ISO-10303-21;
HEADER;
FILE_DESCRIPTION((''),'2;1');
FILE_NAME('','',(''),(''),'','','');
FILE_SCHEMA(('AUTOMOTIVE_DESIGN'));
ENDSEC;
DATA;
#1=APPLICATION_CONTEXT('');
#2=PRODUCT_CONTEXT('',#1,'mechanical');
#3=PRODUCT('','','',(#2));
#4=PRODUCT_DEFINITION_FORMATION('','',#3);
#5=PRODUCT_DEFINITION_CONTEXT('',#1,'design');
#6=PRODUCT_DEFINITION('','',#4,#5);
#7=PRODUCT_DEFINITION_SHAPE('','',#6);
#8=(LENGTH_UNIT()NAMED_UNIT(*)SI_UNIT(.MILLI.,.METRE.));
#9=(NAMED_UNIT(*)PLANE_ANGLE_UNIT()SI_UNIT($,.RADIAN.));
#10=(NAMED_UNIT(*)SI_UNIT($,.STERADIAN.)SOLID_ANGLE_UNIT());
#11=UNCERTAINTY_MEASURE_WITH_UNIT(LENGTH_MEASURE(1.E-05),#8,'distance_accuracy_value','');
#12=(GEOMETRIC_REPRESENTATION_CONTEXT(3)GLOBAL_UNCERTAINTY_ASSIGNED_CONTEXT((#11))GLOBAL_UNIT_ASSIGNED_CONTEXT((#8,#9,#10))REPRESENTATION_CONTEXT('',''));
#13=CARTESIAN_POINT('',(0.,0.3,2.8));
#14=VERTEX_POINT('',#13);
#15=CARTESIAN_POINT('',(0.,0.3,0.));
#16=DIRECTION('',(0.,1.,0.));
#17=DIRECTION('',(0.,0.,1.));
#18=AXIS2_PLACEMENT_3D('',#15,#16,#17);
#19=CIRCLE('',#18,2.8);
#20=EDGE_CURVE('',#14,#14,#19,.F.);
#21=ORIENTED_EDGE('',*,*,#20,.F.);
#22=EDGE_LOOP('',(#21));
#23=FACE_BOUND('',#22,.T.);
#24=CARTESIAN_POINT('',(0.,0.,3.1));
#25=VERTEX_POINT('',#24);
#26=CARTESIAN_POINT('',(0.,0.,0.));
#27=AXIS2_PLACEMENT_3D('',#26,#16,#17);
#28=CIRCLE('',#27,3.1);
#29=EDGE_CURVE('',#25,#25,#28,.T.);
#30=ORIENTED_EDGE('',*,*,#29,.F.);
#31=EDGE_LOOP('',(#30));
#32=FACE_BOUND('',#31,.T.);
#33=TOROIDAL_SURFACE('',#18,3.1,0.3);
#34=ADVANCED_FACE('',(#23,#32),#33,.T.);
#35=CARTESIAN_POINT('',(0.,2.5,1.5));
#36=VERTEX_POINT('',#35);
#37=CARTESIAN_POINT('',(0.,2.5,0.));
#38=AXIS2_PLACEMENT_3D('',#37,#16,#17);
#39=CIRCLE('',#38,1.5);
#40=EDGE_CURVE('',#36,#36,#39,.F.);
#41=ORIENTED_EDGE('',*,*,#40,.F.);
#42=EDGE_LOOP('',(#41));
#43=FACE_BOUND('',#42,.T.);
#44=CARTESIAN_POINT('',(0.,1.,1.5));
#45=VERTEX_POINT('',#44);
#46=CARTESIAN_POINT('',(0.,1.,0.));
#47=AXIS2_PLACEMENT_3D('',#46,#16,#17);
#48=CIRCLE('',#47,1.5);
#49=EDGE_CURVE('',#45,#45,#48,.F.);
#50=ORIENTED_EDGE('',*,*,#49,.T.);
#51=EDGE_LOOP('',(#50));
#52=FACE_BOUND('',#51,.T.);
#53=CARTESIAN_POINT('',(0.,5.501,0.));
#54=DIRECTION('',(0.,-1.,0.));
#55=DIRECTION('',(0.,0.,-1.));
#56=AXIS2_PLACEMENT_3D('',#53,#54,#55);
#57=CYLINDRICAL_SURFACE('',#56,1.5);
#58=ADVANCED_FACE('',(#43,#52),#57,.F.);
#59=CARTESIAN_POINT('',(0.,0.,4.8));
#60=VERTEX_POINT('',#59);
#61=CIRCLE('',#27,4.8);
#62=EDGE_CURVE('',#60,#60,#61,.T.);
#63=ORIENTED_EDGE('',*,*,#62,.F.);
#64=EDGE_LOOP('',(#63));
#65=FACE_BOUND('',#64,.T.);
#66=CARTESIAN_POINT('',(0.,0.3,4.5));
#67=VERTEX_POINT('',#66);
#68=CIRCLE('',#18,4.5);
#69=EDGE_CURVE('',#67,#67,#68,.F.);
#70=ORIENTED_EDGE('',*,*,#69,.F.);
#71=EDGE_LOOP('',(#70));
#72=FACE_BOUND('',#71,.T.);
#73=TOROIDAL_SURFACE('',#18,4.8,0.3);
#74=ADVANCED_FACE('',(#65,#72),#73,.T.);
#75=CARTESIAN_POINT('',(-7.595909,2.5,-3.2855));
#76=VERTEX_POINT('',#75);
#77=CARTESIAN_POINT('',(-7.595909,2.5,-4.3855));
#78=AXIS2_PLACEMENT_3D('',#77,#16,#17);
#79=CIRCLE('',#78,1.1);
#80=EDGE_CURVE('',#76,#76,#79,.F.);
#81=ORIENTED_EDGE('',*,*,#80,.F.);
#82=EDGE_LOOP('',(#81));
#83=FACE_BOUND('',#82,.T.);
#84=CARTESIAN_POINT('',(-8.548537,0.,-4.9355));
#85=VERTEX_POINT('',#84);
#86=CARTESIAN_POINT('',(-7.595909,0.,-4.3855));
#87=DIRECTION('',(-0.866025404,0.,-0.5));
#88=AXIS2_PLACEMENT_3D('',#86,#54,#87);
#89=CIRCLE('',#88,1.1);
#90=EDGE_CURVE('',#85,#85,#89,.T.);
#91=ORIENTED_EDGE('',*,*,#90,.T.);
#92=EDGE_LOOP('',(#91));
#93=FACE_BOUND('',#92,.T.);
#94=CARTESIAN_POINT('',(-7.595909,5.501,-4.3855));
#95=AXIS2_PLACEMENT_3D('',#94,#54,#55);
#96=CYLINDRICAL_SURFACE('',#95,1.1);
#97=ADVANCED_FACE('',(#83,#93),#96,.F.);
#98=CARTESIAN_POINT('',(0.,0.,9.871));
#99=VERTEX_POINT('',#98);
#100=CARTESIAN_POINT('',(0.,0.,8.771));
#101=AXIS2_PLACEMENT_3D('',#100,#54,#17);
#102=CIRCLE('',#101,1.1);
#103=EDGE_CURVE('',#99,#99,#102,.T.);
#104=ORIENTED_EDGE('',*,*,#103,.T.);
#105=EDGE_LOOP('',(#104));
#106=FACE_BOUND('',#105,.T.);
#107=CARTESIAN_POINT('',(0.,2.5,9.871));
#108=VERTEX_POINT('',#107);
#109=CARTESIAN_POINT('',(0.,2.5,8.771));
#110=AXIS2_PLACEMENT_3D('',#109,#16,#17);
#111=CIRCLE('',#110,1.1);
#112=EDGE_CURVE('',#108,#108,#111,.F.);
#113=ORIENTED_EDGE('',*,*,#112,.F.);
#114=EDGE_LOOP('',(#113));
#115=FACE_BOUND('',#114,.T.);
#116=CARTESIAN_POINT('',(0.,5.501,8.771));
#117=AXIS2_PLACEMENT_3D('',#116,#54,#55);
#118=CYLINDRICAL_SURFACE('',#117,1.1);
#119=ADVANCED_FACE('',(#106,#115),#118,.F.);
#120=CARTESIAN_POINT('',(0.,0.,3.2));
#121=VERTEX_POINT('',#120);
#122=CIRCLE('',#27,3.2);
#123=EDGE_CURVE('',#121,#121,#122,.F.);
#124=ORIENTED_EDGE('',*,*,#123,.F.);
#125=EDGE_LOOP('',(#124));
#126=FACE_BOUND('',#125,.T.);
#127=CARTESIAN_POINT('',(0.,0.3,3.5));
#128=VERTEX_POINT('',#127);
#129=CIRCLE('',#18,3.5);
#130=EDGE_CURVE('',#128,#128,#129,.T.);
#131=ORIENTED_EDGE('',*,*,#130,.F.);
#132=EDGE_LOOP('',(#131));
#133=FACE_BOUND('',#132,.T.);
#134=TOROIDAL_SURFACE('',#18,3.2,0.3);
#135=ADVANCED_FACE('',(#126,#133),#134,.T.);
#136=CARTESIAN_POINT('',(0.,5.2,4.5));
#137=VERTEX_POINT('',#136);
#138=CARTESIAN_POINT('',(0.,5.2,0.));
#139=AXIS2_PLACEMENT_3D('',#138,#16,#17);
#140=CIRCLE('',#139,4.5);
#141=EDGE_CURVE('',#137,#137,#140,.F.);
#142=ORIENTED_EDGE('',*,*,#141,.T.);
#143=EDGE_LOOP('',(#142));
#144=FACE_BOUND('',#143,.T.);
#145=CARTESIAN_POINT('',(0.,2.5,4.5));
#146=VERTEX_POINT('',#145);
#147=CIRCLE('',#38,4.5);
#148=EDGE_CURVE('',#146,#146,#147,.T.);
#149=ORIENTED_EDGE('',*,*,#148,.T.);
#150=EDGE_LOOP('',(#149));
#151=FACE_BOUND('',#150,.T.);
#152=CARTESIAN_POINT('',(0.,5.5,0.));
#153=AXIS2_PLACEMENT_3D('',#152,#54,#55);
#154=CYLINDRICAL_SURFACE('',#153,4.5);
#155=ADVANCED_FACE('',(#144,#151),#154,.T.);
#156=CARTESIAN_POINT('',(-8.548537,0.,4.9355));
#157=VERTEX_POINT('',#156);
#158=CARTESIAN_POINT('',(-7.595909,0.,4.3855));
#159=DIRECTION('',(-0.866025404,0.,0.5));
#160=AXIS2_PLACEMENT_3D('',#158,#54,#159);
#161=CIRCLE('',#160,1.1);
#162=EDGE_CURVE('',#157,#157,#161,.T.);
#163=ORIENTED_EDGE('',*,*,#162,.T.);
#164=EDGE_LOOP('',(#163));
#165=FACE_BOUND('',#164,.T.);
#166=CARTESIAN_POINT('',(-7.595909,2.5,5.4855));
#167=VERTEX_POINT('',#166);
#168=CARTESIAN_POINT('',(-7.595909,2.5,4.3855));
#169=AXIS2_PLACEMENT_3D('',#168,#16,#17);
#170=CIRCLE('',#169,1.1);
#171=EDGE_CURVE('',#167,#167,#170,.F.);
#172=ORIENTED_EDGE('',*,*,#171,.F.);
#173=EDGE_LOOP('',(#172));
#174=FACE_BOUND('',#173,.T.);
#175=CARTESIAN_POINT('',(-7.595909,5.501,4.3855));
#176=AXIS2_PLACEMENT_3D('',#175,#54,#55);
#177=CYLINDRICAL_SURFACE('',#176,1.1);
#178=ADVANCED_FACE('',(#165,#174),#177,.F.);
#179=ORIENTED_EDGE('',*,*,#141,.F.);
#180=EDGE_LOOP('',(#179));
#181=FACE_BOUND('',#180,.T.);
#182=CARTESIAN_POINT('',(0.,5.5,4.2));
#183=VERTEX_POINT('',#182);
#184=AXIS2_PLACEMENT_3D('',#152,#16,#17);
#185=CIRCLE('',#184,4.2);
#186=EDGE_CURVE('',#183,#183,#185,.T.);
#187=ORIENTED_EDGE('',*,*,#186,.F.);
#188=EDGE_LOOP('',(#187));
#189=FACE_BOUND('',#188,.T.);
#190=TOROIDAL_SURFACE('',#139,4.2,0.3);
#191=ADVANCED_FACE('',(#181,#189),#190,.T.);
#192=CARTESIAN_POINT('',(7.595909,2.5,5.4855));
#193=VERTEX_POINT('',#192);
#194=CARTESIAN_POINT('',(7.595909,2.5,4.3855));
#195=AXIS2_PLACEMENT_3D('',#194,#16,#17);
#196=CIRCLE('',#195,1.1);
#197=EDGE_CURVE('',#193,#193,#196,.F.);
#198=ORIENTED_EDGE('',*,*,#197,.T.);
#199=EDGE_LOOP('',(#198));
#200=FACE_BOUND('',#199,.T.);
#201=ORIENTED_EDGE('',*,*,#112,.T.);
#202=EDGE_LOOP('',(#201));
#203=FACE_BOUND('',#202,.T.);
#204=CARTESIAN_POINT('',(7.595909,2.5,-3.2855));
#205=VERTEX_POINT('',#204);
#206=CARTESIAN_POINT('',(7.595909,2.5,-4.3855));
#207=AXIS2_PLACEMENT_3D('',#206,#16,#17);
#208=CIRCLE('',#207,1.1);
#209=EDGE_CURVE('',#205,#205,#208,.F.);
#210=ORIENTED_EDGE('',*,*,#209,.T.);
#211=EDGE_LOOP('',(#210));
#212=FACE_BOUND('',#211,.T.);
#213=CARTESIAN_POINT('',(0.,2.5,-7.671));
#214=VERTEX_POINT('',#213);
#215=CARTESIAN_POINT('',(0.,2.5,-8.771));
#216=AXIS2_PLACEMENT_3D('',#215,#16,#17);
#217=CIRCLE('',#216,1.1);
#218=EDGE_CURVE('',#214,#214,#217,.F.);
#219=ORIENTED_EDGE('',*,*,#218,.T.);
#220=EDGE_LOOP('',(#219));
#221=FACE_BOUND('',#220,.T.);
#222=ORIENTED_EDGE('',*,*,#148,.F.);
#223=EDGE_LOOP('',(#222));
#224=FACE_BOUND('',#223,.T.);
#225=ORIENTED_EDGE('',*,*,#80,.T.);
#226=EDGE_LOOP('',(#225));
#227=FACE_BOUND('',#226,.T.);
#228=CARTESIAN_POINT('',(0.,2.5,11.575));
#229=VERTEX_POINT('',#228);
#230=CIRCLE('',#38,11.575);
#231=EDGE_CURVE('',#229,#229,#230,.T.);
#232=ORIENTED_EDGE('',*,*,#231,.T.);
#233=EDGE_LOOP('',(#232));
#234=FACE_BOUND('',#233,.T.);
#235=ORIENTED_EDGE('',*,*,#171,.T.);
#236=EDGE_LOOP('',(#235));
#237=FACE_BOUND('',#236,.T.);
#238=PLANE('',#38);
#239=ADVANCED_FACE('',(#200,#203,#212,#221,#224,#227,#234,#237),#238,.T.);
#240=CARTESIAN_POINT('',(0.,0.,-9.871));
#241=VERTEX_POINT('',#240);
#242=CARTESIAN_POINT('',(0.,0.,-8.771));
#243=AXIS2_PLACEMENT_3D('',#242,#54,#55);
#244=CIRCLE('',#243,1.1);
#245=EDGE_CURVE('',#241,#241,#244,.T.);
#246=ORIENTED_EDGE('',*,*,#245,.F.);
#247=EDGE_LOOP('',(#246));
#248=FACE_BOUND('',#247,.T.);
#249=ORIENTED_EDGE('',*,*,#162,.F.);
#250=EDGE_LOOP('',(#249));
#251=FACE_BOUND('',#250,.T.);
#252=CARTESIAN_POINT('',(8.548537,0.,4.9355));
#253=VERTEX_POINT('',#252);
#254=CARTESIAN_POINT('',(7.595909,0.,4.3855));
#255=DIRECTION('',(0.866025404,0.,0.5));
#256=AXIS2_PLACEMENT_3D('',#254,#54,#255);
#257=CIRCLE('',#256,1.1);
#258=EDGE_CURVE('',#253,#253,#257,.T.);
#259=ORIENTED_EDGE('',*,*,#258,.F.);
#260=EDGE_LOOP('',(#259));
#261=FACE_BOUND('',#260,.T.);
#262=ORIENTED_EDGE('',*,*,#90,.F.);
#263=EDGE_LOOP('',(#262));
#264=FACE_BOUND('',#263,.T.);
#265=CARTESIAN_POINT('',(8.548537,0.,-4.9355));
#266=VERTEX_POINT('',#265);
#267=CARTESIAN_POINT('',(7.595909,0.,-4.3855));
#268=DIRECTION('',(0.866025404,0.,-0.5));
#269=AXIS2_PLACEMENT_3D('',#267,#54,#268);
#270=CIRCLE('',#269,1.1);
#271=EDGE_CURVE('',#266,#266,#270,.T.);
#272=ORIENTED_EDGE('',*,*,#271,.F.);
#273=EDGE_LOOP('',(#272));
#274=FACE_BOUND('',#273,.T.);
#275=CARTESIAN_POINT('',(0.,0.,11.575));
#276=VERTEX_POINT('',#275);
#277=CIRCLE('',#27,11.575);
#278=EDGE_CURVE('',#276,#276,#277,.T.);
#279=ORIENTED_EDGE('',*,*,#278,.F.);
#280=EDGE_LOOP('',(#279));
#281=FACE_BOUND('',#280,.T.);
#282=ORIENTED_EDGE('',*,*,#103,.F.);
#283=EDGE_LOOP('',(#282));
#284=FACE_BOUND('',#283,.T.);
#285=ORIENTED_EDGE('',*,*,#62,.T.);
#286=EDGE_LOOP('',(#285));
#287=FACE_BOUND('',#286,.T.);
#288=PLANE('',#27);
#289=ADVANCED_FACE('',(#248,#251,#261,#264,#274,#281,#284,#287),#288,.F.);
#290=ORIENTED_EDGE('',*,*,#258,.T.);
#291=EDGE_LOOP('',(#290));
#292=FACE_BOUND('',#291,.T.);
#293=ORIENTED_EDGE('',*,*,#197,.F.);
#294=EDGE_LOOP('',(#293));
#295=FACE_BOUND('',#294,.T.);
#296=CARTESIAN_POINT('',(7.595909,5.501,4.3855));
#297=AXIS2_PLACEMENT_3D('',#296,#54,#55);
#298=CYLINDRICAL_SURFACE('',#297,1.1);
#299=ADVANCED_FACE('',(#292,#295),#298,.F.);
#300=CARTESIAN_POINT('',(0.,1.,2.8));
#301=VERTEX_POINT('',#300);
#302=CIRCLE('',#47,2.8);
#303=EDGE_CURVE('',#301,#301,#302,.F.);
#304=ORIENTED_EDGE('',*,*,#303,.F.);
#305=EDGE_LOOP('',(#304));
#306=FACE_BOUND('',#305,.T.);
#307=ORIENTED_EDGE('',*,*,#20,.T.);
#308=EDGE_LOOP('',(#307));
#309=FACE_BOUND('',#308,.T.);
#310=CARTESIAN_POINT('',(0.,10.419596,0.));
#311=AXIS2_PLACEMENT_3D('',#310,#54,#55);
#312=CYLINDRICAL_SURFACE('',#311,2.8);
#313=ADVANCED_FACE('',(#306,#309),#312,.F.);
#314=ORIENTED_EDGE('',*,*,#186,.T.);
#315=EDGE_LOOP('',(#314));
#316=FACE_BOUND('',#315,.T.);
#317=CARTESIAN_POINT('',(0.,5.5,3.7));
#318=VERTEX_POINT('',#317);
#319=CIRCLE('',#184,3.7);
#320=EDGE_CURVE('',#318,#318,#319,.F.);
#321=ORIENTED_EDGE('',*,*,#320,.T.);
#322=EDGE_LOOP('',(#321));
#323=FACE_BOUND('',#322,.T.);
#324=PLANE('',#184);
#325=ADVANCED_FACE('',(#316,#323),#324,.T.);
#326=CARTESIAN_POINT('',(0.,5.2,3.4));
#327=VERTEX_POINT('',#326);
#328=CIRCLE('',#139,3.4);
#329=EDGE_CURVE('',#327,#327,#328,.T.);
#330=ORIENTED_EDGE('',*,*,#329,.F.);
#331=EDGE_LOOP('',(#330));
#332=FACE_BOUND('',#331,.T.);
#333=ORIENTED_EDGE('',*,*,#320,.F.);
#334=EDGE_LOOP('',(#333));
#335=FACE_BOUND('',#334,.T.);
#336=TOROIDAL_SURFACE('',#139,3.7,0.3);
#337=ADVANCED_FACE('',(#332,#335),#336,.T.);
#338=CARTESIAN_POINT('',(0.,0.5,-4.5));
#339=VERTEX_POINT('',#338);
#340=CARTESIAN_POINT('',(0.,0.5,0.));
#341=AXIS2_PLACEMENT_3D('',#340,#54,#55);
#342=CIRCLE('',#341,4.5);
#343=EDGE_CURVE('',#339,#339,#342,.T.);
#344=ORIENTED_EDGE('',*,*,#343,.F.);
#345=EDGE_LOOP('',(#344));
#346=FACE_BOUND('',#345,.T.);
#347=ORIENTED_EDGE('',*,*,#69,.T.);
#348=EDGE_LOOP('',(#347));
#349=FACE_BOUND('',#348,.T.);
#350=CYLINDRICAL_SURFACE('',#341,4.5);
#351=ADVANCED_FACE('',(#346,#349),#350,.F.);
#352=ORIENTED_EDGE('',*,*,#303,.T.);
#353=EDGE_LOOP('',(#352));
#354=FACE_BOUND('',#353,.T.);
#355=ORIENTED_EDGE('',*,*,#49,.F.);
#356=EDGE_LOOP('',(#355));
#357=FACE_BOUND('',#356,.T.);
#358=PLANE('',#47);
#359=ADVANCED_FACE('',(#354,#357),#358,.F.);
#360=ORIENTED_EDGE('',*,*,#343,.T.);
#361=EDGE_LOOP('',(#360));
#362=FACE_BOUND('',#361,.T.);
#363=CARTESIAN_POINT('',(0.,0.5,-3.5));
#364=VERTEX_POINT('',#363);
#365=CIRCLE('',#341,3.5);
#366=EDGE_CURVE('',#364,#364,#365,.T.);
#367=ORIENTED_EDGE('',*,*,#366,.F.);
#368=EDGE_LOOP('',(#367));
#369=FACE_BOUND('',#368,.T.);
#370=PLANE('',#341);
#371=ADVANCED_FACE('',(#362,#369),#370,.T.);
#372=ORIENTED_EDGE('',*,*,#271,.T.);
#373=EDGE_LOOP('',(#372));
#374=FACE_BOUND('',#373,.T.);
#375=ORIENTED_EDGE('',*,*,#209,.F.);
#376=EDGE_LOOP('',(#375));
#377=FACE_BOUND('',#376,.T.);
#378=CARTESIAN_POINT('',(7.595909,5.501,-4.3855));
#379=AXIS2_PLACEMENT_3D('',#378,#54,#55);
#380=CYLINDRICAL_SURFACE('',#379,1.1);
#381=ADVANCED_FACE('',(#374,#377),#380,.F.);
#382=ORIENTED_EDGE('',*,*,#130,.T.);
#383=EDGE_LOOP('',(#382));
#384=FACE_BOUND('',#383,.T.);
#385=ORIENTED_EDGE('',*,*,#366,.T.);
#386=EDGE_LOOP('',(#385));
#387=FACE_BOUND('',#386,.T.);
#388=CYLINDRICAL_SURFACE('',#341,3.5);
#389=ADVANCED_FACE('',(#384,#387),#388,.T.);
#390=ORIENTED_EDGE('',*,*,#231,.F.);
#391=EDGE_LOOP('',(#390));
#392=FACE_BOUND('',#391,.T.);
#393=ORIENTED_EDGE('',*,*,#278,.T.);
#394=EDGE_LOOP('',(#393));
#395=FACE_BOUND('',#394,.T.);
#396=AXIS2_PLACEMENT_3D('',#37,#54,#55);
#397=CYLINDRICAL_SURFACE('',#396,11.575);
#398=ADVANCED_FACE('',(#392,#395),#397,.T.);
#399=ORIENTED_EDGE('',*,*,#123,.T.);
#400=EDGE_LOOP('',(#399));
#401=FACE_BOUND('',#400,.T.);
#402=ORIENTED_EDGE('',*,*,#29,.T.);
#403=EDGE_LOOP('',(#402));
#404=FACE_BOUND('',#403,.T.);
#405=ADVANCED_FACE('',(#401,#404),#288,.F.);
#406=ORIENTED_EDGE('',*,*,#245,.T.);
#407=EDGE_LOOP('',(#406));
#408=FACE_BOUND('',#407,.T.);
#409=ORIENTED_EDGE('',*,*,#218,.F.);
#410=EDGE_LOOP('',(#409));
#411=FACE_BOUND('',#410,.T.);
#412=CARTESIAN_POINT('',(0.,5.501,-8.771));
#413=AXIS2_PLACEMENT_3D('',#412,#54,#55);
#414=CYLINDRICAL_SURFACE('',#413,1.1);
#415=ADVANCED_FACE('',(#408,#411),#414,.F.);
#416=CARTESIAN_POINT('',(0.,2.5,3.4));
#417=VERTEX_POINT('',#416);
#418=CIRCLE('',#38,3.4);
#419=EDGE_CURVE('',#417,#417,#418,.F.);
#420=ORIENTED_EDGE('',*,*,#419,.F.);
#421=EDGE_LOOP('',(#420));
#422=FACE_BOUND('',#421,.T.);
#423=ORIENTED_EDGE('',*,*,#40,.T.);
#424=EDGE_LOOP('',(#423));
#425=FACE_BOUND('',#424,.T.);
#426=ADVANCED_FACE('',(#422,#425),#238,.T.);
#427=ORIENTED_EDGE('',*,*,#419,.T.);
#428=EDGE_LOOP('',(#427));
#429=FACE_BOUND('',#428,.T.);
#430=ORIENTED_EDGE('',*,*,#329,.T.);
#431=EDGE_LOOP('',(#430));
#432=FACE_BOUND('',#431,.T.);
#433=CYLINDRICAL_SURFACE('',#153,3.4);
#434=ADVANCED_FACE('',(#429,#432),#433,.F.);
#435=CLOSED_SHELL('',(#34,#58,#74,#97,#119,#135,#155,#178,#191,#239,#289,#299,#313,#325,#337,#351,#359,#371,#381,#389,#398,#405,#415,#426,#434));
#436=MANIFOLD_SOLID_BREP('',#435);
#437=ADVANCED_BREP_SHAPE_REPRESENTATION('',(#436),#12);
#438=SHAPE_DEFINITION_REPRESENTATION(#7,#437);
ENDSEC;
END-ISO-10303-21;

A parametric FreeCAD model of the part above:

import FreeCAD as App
import Part
import Sketcher
from FreeCAD import Vector
Q = App.Units.Quantity


def edges_at(feature, points):
    """Names of the edges that pass closest to the given points."""
    edges = feature.Shape.Edges
    near = lambda p: min(range(len(edges)), key=lambda i: edges[i].distToShape(Part.Vertex(*p))[0])
    return sorted({f"Edge{near(p) + 1}" for p in points})

doc = App.newDocument("Part")
body = doc.addObject("PartDesign::Body", "Body")

# Sketch on XZ plane
sketch1 = body.newObject("Sketcher::SketchObject", "Sketch")
sketch1.AttachmentSupport = (doc.getObject("XZ_Plane"), [""])
sketch1.MapMode = "FlatFace"
sketch1.addGeometry(Part.Circle(Vector(0, 0, 0), Vector(0, 0, 1), 12), False)
sketch1.addConstraint(Sketcher.Constraint("Coincident", 0, 3, -1, 1))
sketch1.addConstraint(Sketcher.Constraint("Diameter", 0, Q("23.15 mm")))
pad1 = body.newObject("PartDesign::Pad", "Pad")
pad1.Profile = sketch1
pad1.Length = 2.5
pad1.Reversed = True

# Sketch on XZ plane
sketch2 = body.newObject("Sketcher::SketchObject", "Sketch001")
sketch2.AttachmentSupport = (doc.getObject("XZ_Plane"), [""])
sketch2.MapMode = "FlatFace"
sketch2.AttachmentOffset = App.Placement(Vector(0, 0, -2.5), App.Rotation())
sketch2.addGeometry(Part.Circle(Vector(0, 0, 0), Vector(0, 0, 1), 4.5), False)
sketch2.addGeometry(Part.Circle(Vector(0, 0, 0), Vector(0, 0, 1), 3.4), False)
sketch2.addConstraint(Sketcher.Constraint("Coincident", 0, 3, -1, 1))
sketch2.addConstraint(Sketcher.Constraint("Coincident", 1, 3, -1, 1))
sketch2.addConstraint(Sketcher.Constraint("Diameter", 0, Q("9 mm")))
sketch2.addConstraint(Sketcher.Constraint("Diameter", 1, Q("6.8 mm")))
pad2 = body.newObject("PartDesign::Pad", "Pad001")
pad2.Profile = sketch2
pad2.Length = 3
pad2.Reversed = True

# Sketch on XZ plane
sketch3 = body.newObject("Sketcher::SketchObject", "Sketch002")
sketch3.AttachmentSupport = (doc.getObject("XZ_Plane"), [""])
sketch3.MapMode = "FlatFace"
sketch3.addGeometry(Part.Circle(Vector(0, 0, 0), Vector(0, 0, 1), 1.5), False)
sketch3.addConstraint(Sketcher.Constraint("Coincident", 0, 3, -1, 1))
sketch3.addConstraint(Sketcher.Constraint("Diameter", 0, Q("3 mm")))
pocket1 = body.newObject("PartDesign::Pocket", "Pocket")
pocket1.Profile = sketch3
pocket1.Type = "UpToFirst"

# Sketch on XZ plane
sketch4 = body.newObject("Sketcher::SketchObject", "Sketch003")
sketch4.AttachmentSupport = (doc.getObject("XZ_Plane"), [""])
sketch4.MapMode = "FlatFace"
sketch4.addGeometry(Part.Circle(Vector(0, 0, 0), Vector(0, 0, 1), 2.8), False)
sketch4.addConstraint(Sketcher.Constraint("Coincident", 0, 3, -1, 1))
sketch4.addConstraint(Sketcher.Constraint("Diameter", 0, Q("5.6 mm")))
pocket2 = body.newObject("PartDesign::Pocket", "Pocket001")
pocket2.Profile = sketch4
pocket2.Length = 1

# Sketch on XZ plane
sketch5 = body.newObject("Sketcher::SketchObject", "Sketch004")
sketch5.AttachmentSupport = (doc.getObject("XZ_Plane"), [""])
sketch5.MapMode = "FlatFace"
sketch5.addGeometry(Part.Circle(Vector(0, 0, 0), Vector(0, 0, 1), 4.5), False)
sketch5.addGeometry(Part.Circle(Vector(0, 0, 0), Vector(0, 0, 1), 3.5), False)
sketch5.addConstraint(Sketcher.Constraint("Coincident", 0, 3, -1, 1))
sketch5.addConstraint(Sketcher.Constraint("Coincident", 1, 3, -1, 1))
sketch5.addConstraint(Sketcher.Constraint("Diameter", 0, Q("9 mm")))
sketch5.addConstraint(Sketcher.Constraint("Diameter", 1, Q("7 mm")))
pocket3 = body.newObject("PartDesign::Pocket", "Pocket002")
pocket3.Profile = sketch5
pocket3.Length = 0.5
doc.recompute()

fillet = body.newObject("PartDesign::Fillet", "Fillet")
fillet.Base = (pocket3, edges_at(pocket3, [
    (-2.8, 0, 0),
    (-4.5, 0, 0),
    (-3.5, 0, 0),
    (-4.5, 5.5, 0),
    (-3.4, 5.5, 0),
]))
fillet.Radius = 0.3

# Sketch on XZ plane
sketch6 = body.newObject("Sketcher::SketchObject", "Sketch005")
sketch6.AttachmentSupport = (doc.getObject("XZ_Plane"), [""])
sketch6.MapMode = "FlatFace"
sketch6.addGeometry(Part.Circle(Vector(0, -8.8, 0), Vector(0, 0, 1), 1.1), False)
sketch6.addConstraint(Sketcher.Constraint("PointOnObject", 0, 3, -2))
sketch6.addConstraint(Sketcher.Constraint("Diameter", 0, Q("2.2 mm")))
sketch6.addConstraint(Sketcher.Constraint("DistanceY", 0, 3, -1, 1, Q("8.771 mm")))
pocket4 = body.newObject("PartDesign::Pocket", "Pocket003")
pocket4.Profile = sketch6
pocket4.Length = 2.5
doc.recompute()

polarpattern = body.newObject("PartDesign::PolarPattern", "PolarPattern")
polarpattern.Originals = [pocket4]
polarpattern.Axis = (doc.getObject("Y_Axis"), [""])
polarpattern.Angle = 360
polarpattern.Occurrences = 6
body.Tip = polarpattern

doc.recompute()
